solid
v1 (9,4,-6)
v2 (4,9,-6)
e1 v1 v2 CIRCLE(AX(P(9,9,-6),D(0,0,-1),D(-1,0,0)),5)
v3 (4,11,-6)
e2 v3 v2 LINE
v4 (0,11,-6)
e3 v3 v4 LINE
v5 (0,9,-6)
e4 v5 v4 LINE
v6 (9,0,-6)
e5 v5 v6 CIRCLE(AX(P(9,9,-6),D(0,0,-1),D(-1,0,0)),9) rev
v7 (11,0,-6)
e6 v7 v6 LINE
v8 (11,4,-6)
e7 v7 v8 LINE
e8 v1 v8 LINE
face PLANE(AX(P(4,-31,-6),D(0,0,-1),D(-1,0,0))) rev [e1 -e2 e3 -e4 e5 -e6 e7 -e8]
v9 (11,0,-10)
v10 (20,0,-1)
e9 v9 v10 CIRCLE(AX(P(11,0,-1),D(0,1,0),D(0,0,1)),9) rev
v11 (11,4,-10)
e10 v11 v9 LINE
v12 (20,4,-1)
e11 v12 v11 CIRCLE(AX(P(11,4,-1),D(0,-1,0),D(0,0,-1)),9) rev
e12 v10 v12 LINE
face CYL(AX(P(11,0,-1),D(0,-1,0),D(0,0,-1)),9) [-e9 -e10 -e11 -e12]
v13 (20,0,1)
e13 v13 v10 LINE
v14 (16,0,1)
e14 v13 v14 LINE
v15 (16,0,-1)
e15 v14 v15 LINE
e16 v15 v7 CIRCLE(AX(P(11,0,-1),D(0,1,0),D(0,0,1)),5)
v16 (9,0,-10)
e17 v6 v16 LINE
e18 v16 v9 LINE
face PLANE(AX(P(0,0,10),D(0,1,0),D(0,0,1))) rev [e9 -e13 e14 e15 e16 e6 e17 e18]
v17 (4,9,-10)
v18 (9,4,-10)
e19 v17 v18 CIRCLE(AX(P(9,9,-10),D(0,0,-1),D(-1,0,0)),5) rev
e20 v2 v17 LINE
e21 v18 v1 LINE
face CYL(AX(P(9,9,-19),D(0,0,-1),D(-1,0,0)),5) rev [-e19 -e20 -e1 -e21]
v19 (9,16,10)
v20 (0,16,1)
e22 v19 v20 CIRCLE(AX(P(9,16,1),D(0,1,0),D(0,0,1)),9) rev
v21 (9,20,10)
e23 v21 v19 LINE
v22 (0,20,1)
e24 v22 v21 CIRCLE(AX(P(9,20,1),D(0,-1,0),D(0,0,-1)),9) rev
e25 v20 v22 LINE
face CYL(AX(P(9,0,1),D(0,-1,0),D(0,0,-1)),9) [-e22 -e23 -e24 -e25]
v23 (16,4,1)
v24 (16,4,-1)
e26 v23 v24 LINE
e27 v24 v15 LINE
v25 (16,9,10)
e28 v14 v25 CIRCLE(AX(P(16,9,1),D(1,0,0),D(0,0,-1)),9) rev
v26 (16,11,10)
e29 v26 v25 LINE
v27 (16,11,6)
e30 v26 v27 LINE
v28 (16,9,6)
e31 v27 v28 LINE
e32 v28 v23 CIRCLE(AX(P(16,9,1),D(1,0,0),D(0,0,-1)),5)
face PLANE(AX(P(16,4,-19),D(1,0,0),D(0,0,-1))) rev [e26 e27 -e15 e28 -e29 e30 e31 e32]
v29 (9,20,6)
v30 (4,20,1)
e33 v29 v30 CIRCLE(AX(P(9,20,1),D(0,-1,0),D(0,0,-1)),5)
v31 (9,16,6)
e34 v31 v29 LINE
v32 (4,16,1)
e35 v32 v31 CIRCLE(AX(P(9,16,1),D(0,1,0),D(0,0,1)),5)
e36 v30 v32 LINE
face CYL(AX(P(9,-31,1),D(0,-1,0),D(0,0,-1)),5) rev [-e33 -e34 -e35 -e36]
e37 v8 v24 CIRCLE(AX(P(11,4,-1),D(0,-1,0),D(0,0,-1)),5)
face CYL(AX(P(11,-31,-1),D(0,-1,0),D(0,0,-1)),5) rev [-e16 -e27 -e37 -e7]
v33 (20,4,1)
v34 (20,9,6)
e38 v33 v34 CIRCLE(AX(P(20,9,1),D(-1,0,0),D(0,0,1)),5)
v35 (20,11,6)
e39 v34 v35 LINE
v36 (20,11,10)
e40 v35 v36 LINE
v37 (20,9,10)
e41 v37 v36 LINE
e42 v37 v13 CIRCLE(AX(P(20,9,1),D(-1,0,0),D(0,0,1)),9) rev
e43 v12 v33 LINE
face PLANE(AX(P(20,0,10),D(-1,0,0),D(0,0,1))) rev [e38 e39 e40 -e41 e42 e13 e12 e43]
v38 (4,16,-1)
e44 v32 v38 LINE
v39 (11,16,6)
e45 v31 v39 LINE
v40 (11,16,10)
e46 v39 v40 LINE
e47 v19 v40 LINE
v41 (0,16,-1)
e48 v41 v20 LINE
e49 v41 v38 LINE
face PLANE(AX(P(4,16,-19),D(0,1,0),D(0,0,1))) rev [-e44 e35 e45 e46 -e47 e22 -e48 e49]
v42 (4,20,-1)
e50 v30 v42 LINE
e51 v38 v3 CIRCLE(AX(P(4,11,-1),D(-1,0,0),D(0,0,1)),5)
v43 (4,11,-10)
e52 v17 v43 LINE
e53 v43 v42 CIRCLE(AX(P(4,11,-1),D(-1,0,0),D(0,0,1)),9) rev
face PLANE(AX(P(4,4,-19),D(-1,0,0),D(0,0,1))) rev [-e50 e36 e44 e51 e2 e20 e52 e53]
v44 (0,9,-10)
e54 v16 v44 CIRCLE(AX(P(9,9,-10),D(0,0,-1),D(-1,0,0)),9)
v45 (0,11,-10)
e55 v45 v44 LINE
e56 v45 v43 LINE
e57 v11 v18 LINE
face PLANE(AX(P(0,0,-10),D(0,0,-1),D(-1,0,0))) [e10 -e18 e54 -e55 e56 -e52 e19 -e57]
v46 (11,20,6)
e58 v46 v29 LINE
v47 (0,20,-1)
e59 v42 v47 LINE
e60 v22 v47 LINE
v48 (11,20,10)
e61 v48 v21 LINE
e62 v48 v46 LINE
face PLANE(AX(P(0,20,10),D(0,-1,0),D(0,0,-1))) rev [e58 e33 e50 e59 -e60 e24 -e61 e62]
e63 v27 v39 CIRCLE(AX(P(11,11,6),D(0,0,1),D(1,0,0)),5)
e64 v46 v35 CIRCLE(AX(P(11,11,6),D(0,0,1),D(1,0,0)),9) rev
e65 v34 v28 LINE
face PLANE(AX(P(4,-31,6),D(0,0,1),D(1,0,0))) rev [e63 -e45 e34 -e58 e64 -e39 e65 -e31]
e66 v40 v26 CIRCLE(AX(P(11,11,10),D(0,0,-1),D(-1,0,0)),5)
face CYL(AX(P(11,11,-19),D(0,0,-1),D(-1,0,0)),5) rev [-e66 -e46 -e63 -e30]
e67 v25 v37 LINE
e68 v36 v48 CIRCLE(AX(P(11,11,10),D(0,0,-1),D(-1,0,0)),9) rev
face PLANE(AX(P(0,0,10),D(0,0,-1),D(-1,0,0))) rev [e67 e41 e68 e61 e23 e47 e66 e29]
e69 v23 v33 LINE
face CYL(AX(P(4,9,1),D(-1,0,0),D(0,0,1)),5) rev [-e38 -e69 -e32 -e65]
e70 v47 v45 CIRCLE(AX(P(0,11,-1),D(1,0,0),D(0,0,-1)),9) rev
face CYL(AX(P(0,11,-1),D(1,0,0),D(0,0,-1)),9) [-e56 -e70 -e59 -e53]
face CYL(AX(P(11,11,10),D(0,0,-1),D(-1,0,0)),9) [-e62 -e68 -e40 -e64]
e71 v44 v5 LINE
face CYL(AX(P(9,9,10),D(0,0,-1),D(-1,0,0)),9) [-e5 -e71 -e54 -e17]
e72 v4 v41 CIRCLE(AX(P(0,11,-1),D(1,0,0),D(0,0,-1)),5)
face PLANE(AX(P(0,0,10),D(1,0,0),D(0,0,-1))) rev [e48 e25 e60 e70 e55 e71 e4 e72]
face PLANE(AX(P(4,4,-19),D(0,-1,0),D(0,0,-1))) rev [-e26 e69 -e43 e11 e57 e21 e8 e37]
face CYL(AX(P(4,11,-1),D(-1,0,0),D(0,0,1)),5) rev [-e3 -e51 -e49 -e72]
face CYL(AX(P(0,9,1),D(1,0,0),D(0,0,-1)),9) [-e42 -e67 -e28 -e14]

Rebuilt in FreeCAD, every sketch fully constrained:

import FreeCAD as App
import Part
import Sketcher
Q = App.Units.Quantity


def edges_at(feature, points):
    """Names of the edges that pass closest to the given points."""
    edges = feature.Shape.Edges
    near = lambda p: min(range(len(edges)), key=lambda i: edges[i].distToShape(Part.Vertex(*p))[0])
    return sorted({f"Edge{near(p) + 1}" for p in points})

doc = App.newDocument("Part")
params = doc.addObject("Spreadsheet::Sheet", "Params")
for row, (alias, value) in enumerate([
    ("sketch1_width", "20 mm"),
    ("pad1_length", "20 mm"),
    ("sketch2_width", "12 mm"),
    ("pocket1_length", "38 mm"),
    ("sketch3_width", "12 mm"),
    ("pocket2_length", "62 mm"),
    ("sketch4_width", "12 mm"),
    ("pocket3_length", "78 mm"),
    ("sketch5_width", "16 mm"),
    ("pocket4_length", "21 mm"),
    ("pocket4_length2", "6 mm"),
    ("pocket5_length", "43 mm"),
    ("fillet_radius", "9 mm"),
    ("fillet2_radius", "9 mm"),
    ("fillet3_radius", "9 mm"),
    ("fillet4_radius", "9 mm"),
    ("fillet5_radius", "9 mm"),
    ("fillet6_radius", "9 mm"),
    ("fillet7_radius", "5 mm"),
    ("fillet8_radius", "5 mm"),
    ("fillet9_radius", "5 mm"),
    ("fillet10_radius", "5 mm"),
    ("fillet11_radius", "5 mm"),
    ("fillet12_radius", "5 mm"),
], start=1):
    params.set(f"A{row}", alias)
    params.set(f"B{row}", "=" + value)
    params.setAlias(f"B{row}", alias)

body = doc.addObject("PartDesign::Body", "Body")

# Sketch on XY plane
sketch1 = doc.addObject("Sketcher::SketchObject", "Sketch")
body.addObject(sketch1)
sketch1.AttachmentSupport = (doc.XY_Plane, [""])
sketch1.MapMode = "FlatFace"
sketch1.addGeometry([
    Part.LineSegment(App.Vector(0, 20, 0), App.Vector(0, 0, 0)),
    Part.LineSegment(App.Vector(0, 0, 0), App.Vector(20, 0, 0)),
    Part.LineSegment(App.Vector(20, 0, 0), App.Vector(20, 20, 0)),
    Part.LineSegment(App.Vector(20, 20, 0), App.Vector(0, 20, 0)),
], False)
sketch1.addConstraint([
    Sketcher.Constraint("Coincident", 0, 2, 1, 1),
    Sketcher.Constraint("Coincident", 1, 2, 2, 1),
    Sketcher.Constraint("Coincident", 2, 2, 3, 1),
    Sketcher.Constraint("Coincident", 3, 2, 0, 1),
    Sketcher.Constraint("Vertical", 0),
    Sketcher.Constraint("Horizontal", 1),
    Sketcher.Constraint("Vertical", 2),
    Sketcher.Constraint("Horizontal", 3),
    Sketcher.Constraint("Coincident", 0, 2, -1, 1),
    Sketcher.Constraint("Equal", 3, 0),
    Sketcher.Constraint("DistanceX", 1, 1, 1, 2, Q("20 mm")),
])
sketch1.setExpression("Constraints[10]", "Params.sketch1_width")
pad1 = doc.addObject("PartDesign::Pad", "Pad")
body.addObject(pad1)
pad1.Profile = sketch1
pad1.setExpression("Length", "Params.pad1_length")
pad1.Midplane = True

# Sketch on XY plane
sketch2 = doc.addObject("Sketcher::SketchObject", "Sketch001")
body.addObject(sketch2)
sketch2.AttachmentSupport = (doc.XY_Plane, [""])
sketch2.MapMode = "FlatFace"
sketch2.addGeometry([
    Part.LineSegment(App.Vector(4, 16, 0), App.Vector(4, 4, 0)),
    Part.LineSegment(App.Vector(4, 4, 0), App.Vector(16, 4, 0)),
    Part.LineSegment(App.Vector(16, 4, 0), App.Vector(16, 16, 0)),
    Part.LineSegment(App.Vector(16, 16, 0), App.Vector(4, 16, 0)),
], False)
sketch2.addConstraint([
    Sketcher.Constraint("Coincident", 0, 2, 1, 1),
    Sketcher.Constraint("Coincident", 1, 2, 2, 1),
    Sketcher.Constraint("Coincident", 2, 2, 3, 1),
    Sketcher.Constraint("Coincident", 3, 2, 0, 1),
    Sketcher.Constraint("Vertical", 0),
    Sketcher.Constraint("Horizontal", 1),
    Sketcher.Constraint("Vertical", 2),
    Sketcher.Constraint("Horizontal", 3),
    Sketcher.Constraint("Equal", 3, 0),
    Sketcher.Constraint("DistanceX", 1, 1, 1, 2, Q("12 mm")),
    Sketcher.Constraint("DistanceX", -1, 1, 0, 2, Q("4 mm")),
    Sketcher.Constraint("DistanceY", -1, 1, 0, 2, Q("4 mm")),
])
sketch2.setExpression("Constraints[9]", "Params.sketch2_width")
pocket1 = doc.addObject("PartDesign::Pocket", "Pocket")
body.addObject(pocket1)
pocket1.Profile = sketch2
pocket1.setExpression("Length", "Params.pocket1_length")
pocket1.Midplane = True

# Sketch on XZ plane
sketch3 = doc.addObject("Sketcher::SketchObject", "Sketch002")
body.addObject(sketch3)
sketch3.AttachmentSupport = (doc.XZ_Plane, [""])
sketch3.MapMode = "FlatFace"
sketch3.addGeometry([
    Part.LineSegment(App.Vector(4, -6, 0), App.Vector(4, 6, 0)),
    Part.LineSegment(App.Vector(4, 6, 0), App.Vector(16, 6, 0)),
    Part.LineSegment(App.Vector(16, 6, 0), App.Vector(16, -6, 0)),
    Part.LineSegment(App.Vector(16, -6, 0), App.Vector(4, -6, 0)),
], False)
sketch3.addConstraint([
    Sketcher.Constraint("Coincident", 0, 2, 1, 1),
    Sketcher.Constraint("Coincident", 1, 2, 2, 1),
    Sketcher.Constraint("Coincident", 2, 2, 3, 1),
    Sketcher.Constraint("Coincident", 3, 2, 0, 1),
    Sketcher.Constraint("Vertical", 0),
    Sketcher.Constraint("Horizontal", 1),
    Sketcher.Constraint("Vertical", 2),
    Sketcher.Constraint("Horizontal", 3),
    Sketcher.Constraint("Equal", 3, 0),
    Sketcher.Constraint("DistanceX", 1, 1, 1, 2, Q("12 mm")),
    Sketcher.Constraint("DistanceX", -1, 1, 0, 2, Q("4 mm")),
    Sketcher.Constraint("DistanceY", -1, 1, 0, 2, Q("6 mm")),
])
sketch3.setExpression("Constraints[9]", "Params.sketch3_width")
pocket2 = doc.addObject("PartDesign::Pocket", "Pocket001")
body.addObject(pocket2)
pocket2.Profile = sketch3
pocket2.setExpression("Length", "Params.pocket2_length")
pocket2.Midplane = True

# Sketch on YZ plane
sketch4 = doc.addObject("Sketcher::SketchObject", "Sketch003")
body.addObject(sketch4)
sketch4.AttachmentSupport = (doc.YZ_Plane, [""])
sketch4.MapMode = "FlatFace"
sketch4.addGeometry([
    Part.LineSegment(App.Vector(16, 6, 0), App.Vector(4, 6, 0)),
    Part.LineSegment(App.Vector(4, 6, 0), App.Vector(4, -6, 0)),
    Part.LineSegment(App.Vector(4, -6, 0), App.Vector(16, -6, 0)),
    Part.LineSegment(App.Vector(16, -6, 0), App.Vector(16, 6, 0)),
], False)
sketch4.addConstraint([
    Sketcher.Constraint("Coincident", 0, 2, 1, 1),
    Sketcher.Constraint("Coincident", 1, 2, 2, 1),
    Sketcher.Constraint("Coincident", 2, 2, 3, 1),
    Sketcher.Constraint("Coincident", 3, 2, 0, 1),
    Sketcher.Constraint("Horizontal", 0),
    Sketcher.Constraint("Vertical", 1),
    Sketcher.Constraint("Horizontal", 2),
    Sketcher.Constraint("Vertical", 3),
    Sketcher.Constraint("Equal", 2, 1),
    Sketcher.Constraint("DistanceX", 0, 2, 0, 1, Q("12 mm")),
    Sketcher.Constraint("DistanceX", -1, 1, 0, 2, Q("4 mm")),
    Sketcher.Constraint("DistanceY", -1, 1, 0, 2, Q("6 mm")),
])
sketch4.setExpression("Constraints[9]", "Params.sketch4_width")
pocket3 = doc.addObject("PartDesign::Pocket", "Pocket002")
body.addObject(pocket3)
pocket3.Profile = sketch4
pocket3.setExpression("Length", "Params.pocket3_length")
pocket3.Midplane = True

# Sketch on XY plane
sketch5 = doc.addObject("Sketcher::SketchObject", "Sketch004")
body.addObject(sketch5)
sketch5.AttachmentSupport = (doc.XY_Plane, [""])
sketch5.MapMode = "FlatFace"
sketch5.addGeometry([
    Part.LineSegment(App.Vector(0, 16, 0), App.Vector(0, 0, 0)),
    Part.LineSegment(App.Vector(0, 0, 0), App.Vector(16, 0, 0)),
    Part.LineSegment(App.Vector(16, 0, 0), App.Vector(16, 16, 0)),
    Part.LineSegment(App.Vector(16, 16, 0), App.Vector(0, 16, 0)),
], False)
sketch5.addConstraint([
    Sketcher.Constraint("Coincident", 0, 2, 1, 1),
    Sketcher.Constraint("Coincident", 1, 2, 2, 1),
    Sketcher.Constraint("Coincident", 2, 2, 3, 1),
    Sketcher.Constraint("Coincident", 3, 2, 0, 1),
    Sketcher.Constraint("Vertical", 0),
    Sketcher.Constraint("Horizontal", 1),
    Sketcher.Constraint("Vertical", 2),
    Sketcher.Constraint("Horizontal", 3),
    Sketcher.Constraint("Coincident", 0, 2, -1, 1),
    Sketcher.Constraint("Equal", 3, 0),
    Sketcher.Constraint("DistanceX", 1, 1, 1, 2, Q("16 mm")),
])
sketch5.setExpression("Constraints[10]", "Params.sketch5_width")
pocket4 = doc.addObject("PartDesign::Pocket", "Pocket003")
body.addObject(pocket4)
pocket4.Profile = sketch5
pocket4.Type = "TwoLengths"
pocket4.setExpression("Length", "Params.pocket4_length")
pocket4.setExpression("Length2", "Params.pocket4_length2")
pocket4.Reversed = True

# Sketch on XZ plane
sketch6 = doc.addObject("Sketcher::SketchObject", "Sketch005")
body.addObject(sketch6)
sketch6.AttachmentSupport = (doc.XZ_Plane, [""])
sketch6.MapMode = "FlatFace"
sketch6.AttachmentOffset = App.Placement(App.Vector(0, 0, -4), App.Rotation())
sketch6.addGeometry([
    Part.LineSegment(App.Vector(4, -12.231479, 0), App.Vector(4, 6, 0)),
    Part.LineSegment(App.Vector(4, 6, 0), App.Vector(21.478583, 6, 0)),
    Part.LineSegment(App.Vector(21.478583, 6, 0), App.Vector(21.478583, -12.231479, 0)),
    Part.LineSegment(App.Vector(21.478583, -12.231479, 0), App.Vector(4, -12.231479, 0)),
], False)
sketch6.addConstraint([
    Sketcher.Constraint("Coincident", 0, 2, 1, 1),
    Sketcher.Constraint("Coincident", 1, 2, 2, 1),
    Sketcher.Constraint("Coincident", 2, 2, 3, 1),
    Sketcher.Constraint("Coincident", 3, 2, 0, 1),
    Sketcher.Constraint("Vertical", 0),
    Sketcher.Constraint("Horizontal", 1),
    Sketcher.Constraint("Vertical", 2),
    Sketcher.Constraint("Horizontal", 3),
    Sketcher.Constraint("DistanceX", -1, 1, 0, 2, Q("4 mm")),
    Sketcher.Constraint("DistanceY", -1, 1, 0, 2, Q("6 mm")),
    Sketcher.Constraint("DistanceY", 0, 1, 0, 2, Q("18.231479 mm")),
    Sketcher.Constraint("DistanceX", 1, 1, 1, 2, Q("17.478583 mm")),
])
pocket5 = doc.addObject("PartDesign::Pocket", "Pocket004")
body.addObject(pocket5)
pocket5.Profile = sketch6
pocket5.setExpression("Length", "Params.pocket5_length")
doc.recompute()

fillet = doc.addObject("PartDesign::Fillet", "Fillet")
body.addObject(fillet)
fillet.Base = (pocket5, edges_at(pocket5, [(20, 20, 8)]))
fillet.setExpression("Radius", "Params.fillet_radius")
doc.recompute()

fillet2 = doc.addObject("PartDesign::Fillet", "Fillet001")
body.addObject(fillet2)
fillet2.Base = (fillet, edges_at(fillet, [(0, 0, -8)]))
fillet2.setExpression("Radius", "Params.fillet2_radius")
doc.recompute()

fillet3 = doc.addObject("PartDesign::Fillet", "Fillet002")
body.addObject(fillet3)
fillet3.Base = (fillet2, edges_at(fillet2, [(20, 2, -10)]))
fillet3.setExpression("Radius", "Params.fillet3_radius")
doc.recompute()

fillet4 = doc.addObject("PartDesign::Fillet", "Fillet003")
body.addObject(fillet4)
fillet4.Base = (fillet3, edges_at(fillet3, [(0, 18, 10)]))
fillet4.setExpression("Radius", "Params.fillet4_radius")
doc.recompute()

fillet5 = doc.addObject("PartDesign::Fillet", "Fillet004")
body.addObject(fillet5)
fillet5.Base = (fillet4, edges_at(fillet4, [(2, 20, -10)]))
fillet5.setExpression("Radius", "Params.fillet5_radius")
doc.recompute()

fillet6 = doc.addObject("PartDesign::Fillet", "Fillet005")
body.addObject(fillet6)
fillet6.Base = (fillet5, edges_at(fillet5, [(18, 0, 10)]))
fillet6.setExpression("Radius", "Params.fillet6_radius")
doc.recompute()

fillet7 = doc.addObject("PartDesign::Fillet", "Fillet006")
body.addObject(fillet7)
fillet7.Base = (fillet6, edges_at(fillet6, [(4, 18, 6)]))
fillet7.setExpression("Radius", "Params.fillet7_radius")
doc.recompute()

fillet8 = doc.addObject("PartDesign::Fillet", "Fillet007")
body.addObject(fillet8)
fillet8.Base = (fillet7, edges_at(fillet7, [(16, 2, -6)]))
fillet8.setExpression("Radius", "Params.fillet8_radius")
doc.recompute()

fillet9 = doc.addObject("PartDesign::Fillet", "Fillet008")
body.addObject(fillet9)
fillet9.Base = (fillet8, edges_at(fillet8, [(16, 16, 8)]))
fillet9.setExpression("Radius", "Params.fillet9_radius")
doc.recompute()

fillet10 = doc.addObject("PartDesign::Fillet", "Fillet009")
body.addObject(fillet10)
fillet10.Base = (fillet9, edges_at(fillet9, [(4, 4, -8)]))
fillet10.setExpression("Radius", "Params.fillet10_radius")
doc.recompute()

fillet11 = doc.addObject("PartDesign::Fillet", "Fillet010")
body.addObject(fillet11)
fillet11.Base = (fillet10, edges_at(fillet10, [(18, 4, 6)]))
fillet11.setExpression("Radius", "Params.fillet11_radius")
doc.recompute()

fillet12 = doc.addObject("PartDesign::Fillet", "Fillet011")
body.addObject(fillet12)
fillet12.Base = (fillet11, edges_at(fillet11, [(2, 16, -6)]))
fillet12.setExpression("Radius", "Params.fillet12_radius")

doc.recompute()
